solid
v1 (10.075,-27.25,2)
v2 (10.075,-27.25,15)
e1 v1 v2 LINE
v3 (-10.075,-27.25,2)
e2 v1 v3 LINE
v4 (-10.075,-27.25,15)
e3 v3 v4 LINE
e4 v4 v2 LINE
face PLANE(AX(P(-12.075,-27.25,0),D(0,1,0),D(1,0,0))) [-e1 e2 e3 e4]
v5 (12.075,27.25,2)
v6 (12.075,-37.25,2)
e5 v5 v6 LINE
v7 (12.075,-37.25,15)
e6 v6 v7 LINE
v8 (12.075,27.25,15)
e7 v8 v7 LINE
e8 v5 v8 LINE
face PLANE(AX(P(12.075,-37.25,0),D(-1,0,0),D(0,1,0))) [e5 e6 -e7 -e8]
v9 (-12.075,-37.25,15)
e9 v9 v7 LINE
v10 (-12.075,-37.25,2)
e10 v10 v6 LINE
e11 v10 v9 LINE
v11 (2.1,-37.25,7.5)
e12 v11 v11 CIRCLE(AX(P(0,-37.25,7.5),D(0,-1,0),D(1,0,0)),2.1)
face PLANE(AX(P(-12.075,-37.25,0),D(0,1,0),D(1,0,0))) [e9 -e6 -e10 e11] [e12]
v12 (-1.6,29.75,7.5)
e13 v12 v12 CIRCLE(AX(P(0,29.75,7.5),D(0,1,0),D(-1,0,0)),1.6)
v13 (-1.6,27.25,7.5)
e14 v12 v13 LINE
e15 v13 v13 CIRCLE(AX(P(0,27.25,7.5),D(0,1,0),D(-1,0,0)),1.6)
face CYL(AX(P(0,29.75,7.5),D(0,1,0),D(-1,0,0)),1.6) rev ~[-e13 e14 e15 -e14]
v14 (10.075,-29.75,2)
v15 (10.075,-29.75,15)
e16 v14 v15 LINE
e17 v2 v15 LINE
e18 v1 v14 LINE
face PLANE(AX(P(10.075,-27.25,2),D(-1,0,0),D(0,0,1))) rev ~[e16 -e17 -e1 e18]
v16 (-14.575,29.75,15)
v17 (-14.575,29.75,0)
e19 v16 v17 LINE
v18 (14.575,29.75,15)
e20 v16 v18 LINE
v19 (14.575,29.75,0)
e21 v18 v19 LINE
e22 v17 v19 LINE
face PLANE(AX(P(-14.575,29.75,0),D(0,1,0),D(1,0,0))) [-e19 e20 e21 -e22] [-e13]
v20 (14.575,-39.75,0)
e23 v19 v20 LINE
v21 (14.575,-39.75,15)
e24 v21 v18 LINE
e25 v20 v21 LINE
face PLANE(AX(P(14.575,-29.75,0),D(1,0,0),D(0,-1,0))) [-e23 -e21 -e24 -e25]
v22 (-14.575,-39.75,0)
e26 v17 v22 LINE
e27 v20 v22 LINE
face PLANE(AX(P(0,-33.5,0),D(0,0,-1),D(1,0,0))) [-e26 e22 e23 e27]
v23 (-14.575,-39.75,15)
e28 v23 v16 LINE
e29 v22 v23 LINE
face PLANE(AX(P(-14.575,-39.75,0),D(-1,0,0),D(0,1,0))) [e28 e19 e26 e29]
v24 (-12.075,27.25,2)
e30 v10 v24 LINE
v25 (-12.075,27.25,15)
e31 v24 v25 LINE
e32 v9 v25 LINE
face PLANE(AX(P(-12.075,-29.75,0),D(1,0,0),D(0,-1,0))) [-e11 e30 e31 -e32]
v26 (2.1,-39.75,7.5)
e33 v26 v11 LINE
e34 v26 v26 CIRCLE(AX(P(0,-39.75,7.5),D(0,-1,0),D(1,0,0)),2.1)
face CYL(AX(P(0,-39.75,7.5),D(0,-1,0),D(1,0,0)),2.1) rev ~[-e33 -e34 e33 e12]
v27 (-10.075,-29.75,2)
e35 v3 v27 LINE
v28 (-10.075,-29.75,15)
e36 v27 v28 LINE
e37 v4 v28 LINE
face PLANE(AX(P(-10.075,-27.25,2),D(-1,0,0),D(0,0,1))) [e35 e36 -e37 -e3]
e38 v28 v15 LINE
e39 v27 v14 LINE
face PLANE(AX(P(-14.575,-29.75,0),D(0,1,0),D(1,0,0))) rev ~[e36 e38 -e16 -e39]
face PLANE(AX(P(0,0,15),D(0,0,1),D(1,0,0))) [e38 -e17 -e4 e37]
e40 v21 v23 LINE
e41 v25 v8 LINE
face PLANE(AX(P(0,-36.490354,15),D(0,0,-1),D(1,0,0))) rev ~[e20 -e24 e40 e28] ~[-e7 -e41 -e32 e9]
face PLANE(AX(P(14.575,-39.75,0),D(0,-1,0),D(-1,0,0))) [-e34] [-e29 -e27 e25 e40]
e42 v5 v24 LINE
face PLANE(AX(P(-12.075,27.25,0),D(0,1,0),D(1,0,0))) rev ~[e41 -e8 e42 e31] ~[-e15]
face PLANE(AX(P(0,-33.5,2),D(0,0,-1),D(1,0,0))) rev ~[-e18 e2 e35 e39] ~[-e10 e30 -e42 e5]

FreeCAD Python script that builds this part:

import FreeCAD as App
import Part
import Sketcher
from FreeCAD import Vector


def add_polygon(sketch, points):
    """Adds a closed chain of lines whose ends are joined by coincident constraints."""
    first, n = sketch.GeometryCount, len(points)
    for a, b in zip(points, points[1:] + points[:1]):
        sketch.addGeometry(Part.LineSegment(App.Vector(*a, 0), App.Vector(*b, 0)), False)
    for i in range(n):
        sketch.addConstraint(Sketcher.Constraint("Coincident", first + i, 2, first + (i + 1) % n, 1))

doc = App.newDocument("Part")
body = doc.addObject("PartDesign::Body", "Body")

# Sketch on XY plane
sketch1 = doc.addObject("Sketcher::SketchObject", "Sketch")
body.addObject(sketch1)
sketch1.AttachmentSupport = (doc.XY_Plane, [""])
sketch1.MapMode = "FlatFace"
add_polygon(sketch1, [(-15, 30), (-15, -30), (15, -30), (15, 30)])  # lines 0-3
sketch1.addConstraint([
    Sketcher.Constraint("Vertical", 0),
    Sketcher.Constraint("Horizontal", 1),
    Sketcher.Constraint("Vertical", 2),
    Sketcher.Constraint("Horizontal", 3),
    Sketcher.Constraint("Symmetric", 0, 2, 2, 2, -1, 1),
    Sketcher.Constraint("DistanceY", 0, 2, 0, 1, 59.5),
    Sketcher.Constraint("DistanceX", 1, 1, 1, 2, 29.15),
])
pad1 = doc.addObject("PartDesign::Pad", "Pad")
body.addObject(pad1)
pad1.Profile = sketch1
pad1.Length = 2

# Sketch on XY plane
sketch2 = doc.addObject("Sketcher::SketchObject", "Sketch001")
body.addObject(sketch2)
sketch2.AttachmentSupport = (doc.XY_Plane, [""])
sketch2.MapMode = "FlatFace"
add_polygon(sketch2, [(-15, 30), (-15, -30), (15, -30), (15, 30)])  # lines 0-3
add_polygon(sketch2, [(12, -27), (-12, -27), (-12, 27), (12, 27)])  # lines 4-7
sketch2.addConstraint([
    Sketcher.Constraint("Vertical", 0),
    Sketcher.Constraint("Horizontal", 1),
    Sketcher.Constraint("Vertical", 2),
    Sketcher.Constraint("Horizontal", 3),
    Sketcher.Constraint("Horizontal", 4),
    Sketcher.Constraint("Vertical", 5),
    Sketcher.Constraint("Horizontal", 6),
    Sketcher.Constraint("Vertical", 7),
    Sketcher.Constraint("Symmetric", 0, 2, 2, 2, -1, 1),
    Sketcher.Constraint("Symmetric", 4, 2, 6, 2, -1, 1),
    Sketcher.Constraint("DistanceY", 0, 2, 0, 1, 59.5),
    Sketcher.Constraint("DistanceY", 5, 1, 5, 2, 54.5),
    Sketcher.Constraint("DistanceX", 1, 1, 1, 2, 29.15),
    Sketcher.Constraint("DistanceX", 4, 2, 4, 1, 24.15),
])
pad2 = doc.addObject("PartDesign::Pad", "Pad001")
body.addObject(pad2)
pad2.Profile = sketch2
pad2.Length = 15

# Sketch on XZ plane
sketch3 = doc.addObject("Sketcher::SketchObject", "Sketch002")
body.addObject(sketch3)
sketch3.AttachmentSupport = (doc.XZ_Plane, [""])
sketch3.MapMode = "FlatFace"
sketch3.AttachmentOffset = App.Placement(Vector(0, 0, 27.25), App.Rotation())
add_polygon(sketch3, [(-10.1, 15), (-10.1, 2), (-12.1, 2), (-12.1, 15)])  # lines 0-3
add_polygon(sketch3, [(12.1, 15), (12.1, 2), (10.1, 2), (10.1, 15)])  # lines 4-7
sketch3.addConstraint([
    Sketcher.Constraint("Vertical", 0),
    Sketcher.Constraint("Horizontal", 1),
    Sketcher.Constraint("Vertical", 2),
    Sketcher.Constraint("Horizontal", 3),
    Sketcher.Constraint("Vertical", 4),
    Sketcher.Constraint("Horizontal", 5),
    Sketcher.Constraint("Vertical", 6),
    Sketcher.Constraint("Horizontal", 7),
    Sketcher.Constraint("Symmetric", 1, 2, 4, 2, -2),
    Sketcher.Constraint("Symmetric", 3, 2, 6, 2, -2),
    Sketcher.Constraint("DistanceX", 1, 2, 1, 1, 2.0),
    Sketcher.Constraint("DistanceY", 0, 2, 0, 1, 13.0),
    Sketcher.Constraint("DistanceY", -1, 1, 0, 2, 2.0),
    Sketcher.Constraint("DistanceX", 0, 2, 4, 2, 22.15),
])
pocket1 = doc.addObject("PartDesign::Pocket", "Pocket")
body.addObject(pocket1)
pocket1.Profile = sketch3
pocket1.Length = 25
pocket1.Reversed = True

# Sketch on XY plane
sketch4 = doc.addObject("Sketcher::SketchObject", "Sketch003")
body.addObject(sketch4)
sketch4.AttachmentSupport = (doc.XY_Plane, [""])
sketch4.MapMode = "FlatFace"
add_polygon(sketch4, [(-14.6, -39.8), (-14.6, -29.8), (-12.1, -29.8), (-12.1, -37.2), (12.1, -37.2), (12.1, -29.8), (14.6, -29.8), (14.6, -39.8)])  # lines 0-7
sketch4.addConstraint([
    Sketcher.Constraint("Vertical", 0),
    Sketcher.Constraint("Horizontal", 1),
    Sketcher.Constraint("Vertical", 2),
    Sketcher.Constraint("Horizontal", 3),
    Sketcher.Constraint("Vertical", 4),
    Sketcher.Constraint("Horizontal", 5),
    Sketcher.Constraint("Vertical", 6),
    Sketcher.Constraint("Horizontal", 7),
    Sketcher.Constraint("Symmetric", 1, 2, 4, 2, -2),
    Sketcher.Constraint("Equal", 1, 5),
    Sketcher.Constraint("DistanceY", 0, 1, 0, 2, 10.0),
    Sketcher.Constraint("DistanceX", 1, 1, 1, 2, 2.5),
    Sketcher.Constraint("DistanceY", 2, 2, 2, 1, 7.5),
    Sketcher.Constraint("DistanceX", 3, 1, 3, 2, 24.15),
    Sketcher.Constraint("DistanceY", 0, 2, -1, 1, 29.75),
])
pad3 = doc.addObject("PartDesign::Pad", "Pad002")
body.addObject(pad3)
pad3.Profile = sketch4
pad3.Length = 15

# Sketch on XY plane
sketch5 = doc.addObject("Sketcher::SketchObject", "Sketch004")
body.addObject(sketch5)
sketch5.AttachmentSupport = (doc.XY_Plane, [""])
sketch5.MapMode = "FlatFace"
add_polygon(sketch5, [(-12, -37), (-12, -30), (12, -30), (12, -37)])  # lines 0-3
sketch5.addConstraint([
    Sketcher.Constraint("Vertical", 0),
    Sketcher.Constraint("Horizontal", 1),
    Sketcher.Constraint("Vertical", 2),
    Sketcher.Constraint("Horizontal", 3),
    Sketcher.Constraint("DistanceY", 0, 1, 0, 2, 7.5),
    Sketcher.Constraint("DistanceX", 1, 1, 1, 2, 24.15),
    Sketcher.Constraint("DistanceY", 0, 2, -1, 1, 29.75),
    Sketcher.Constraint("DistanceX", 0, 2, -1, 1, 12.075),
])
pad4 = doc.addObject("PartDesign::Pad", "Pad003")
body.addObject(pad4)
pad4.Profile = sketch5
pad4.Length = 2

# Sketch on XZ plane
sketch6 = doc.addObject("Sketcher::SketchObject", "Sketch005")
body.addObject(sketch6)
sketch6.AttachmentSupport = (doc.XZ_Plane, [""])
sketch6.MapMode = "FlatFace"
sketch6.AttachmentOffset = App.Placement(Vector(0, 0, 39.75), App.Rotation())
sketch6.addGeometry(Part.Circle(Vector(0, 7.5, 0), Vector(0, 0, 1), 2.1), False)
sketch6.addConstraint([
    Sketcher.Constraint("PointOnObject", 0, 3, -2),
    Sketcher.Constraint("Diameter", 0, 4.2),
    Sketcher.Constraint("DistanceY", -1, 1, 0, 3, 7.5),
])
pocket2 = doc.addObject("PartDesign::Pocket", "Pocket001")
body.addObject(pocket2)
pocket2.Profile = sketch6
pocket2.Length = 5

# Sketch on XZ plane
sketch7 = doc.addObject("Sketcher::SketchObject", "Sketch006")
body.addObject(sketch7)
sketch7.AttachmentSupport = (doc.XZ_Plane, [""])
sketch7.MapMode = "FlatFace"
sketch7.AttachmentOffset = App.Placement(Vector(0, 0, -29.75), App.Rotation())
sketch7.addGeometry(Part.Circle(Vector(0, 7.5, 0), Vector(0, 0, 1), 1.6), False)
sketch7.addConstraint([
    Sketcher.Constraint("PointOnObject", 0, 3, -2),
    Sketcher.Constraint("Diameter", 0, 3.2),
    Sketcher.Constraint("DistanceY", -1, 1, 0, 3, 7.5),
])
pocket3 = doc.addObject("PartDesign::Pocket", "Pocket002")
body.addObject(pocket3)
pocket3.Profile = sketch7
pocket3.Length = 25
pocket3.Reversed = True

doc.recompute()
